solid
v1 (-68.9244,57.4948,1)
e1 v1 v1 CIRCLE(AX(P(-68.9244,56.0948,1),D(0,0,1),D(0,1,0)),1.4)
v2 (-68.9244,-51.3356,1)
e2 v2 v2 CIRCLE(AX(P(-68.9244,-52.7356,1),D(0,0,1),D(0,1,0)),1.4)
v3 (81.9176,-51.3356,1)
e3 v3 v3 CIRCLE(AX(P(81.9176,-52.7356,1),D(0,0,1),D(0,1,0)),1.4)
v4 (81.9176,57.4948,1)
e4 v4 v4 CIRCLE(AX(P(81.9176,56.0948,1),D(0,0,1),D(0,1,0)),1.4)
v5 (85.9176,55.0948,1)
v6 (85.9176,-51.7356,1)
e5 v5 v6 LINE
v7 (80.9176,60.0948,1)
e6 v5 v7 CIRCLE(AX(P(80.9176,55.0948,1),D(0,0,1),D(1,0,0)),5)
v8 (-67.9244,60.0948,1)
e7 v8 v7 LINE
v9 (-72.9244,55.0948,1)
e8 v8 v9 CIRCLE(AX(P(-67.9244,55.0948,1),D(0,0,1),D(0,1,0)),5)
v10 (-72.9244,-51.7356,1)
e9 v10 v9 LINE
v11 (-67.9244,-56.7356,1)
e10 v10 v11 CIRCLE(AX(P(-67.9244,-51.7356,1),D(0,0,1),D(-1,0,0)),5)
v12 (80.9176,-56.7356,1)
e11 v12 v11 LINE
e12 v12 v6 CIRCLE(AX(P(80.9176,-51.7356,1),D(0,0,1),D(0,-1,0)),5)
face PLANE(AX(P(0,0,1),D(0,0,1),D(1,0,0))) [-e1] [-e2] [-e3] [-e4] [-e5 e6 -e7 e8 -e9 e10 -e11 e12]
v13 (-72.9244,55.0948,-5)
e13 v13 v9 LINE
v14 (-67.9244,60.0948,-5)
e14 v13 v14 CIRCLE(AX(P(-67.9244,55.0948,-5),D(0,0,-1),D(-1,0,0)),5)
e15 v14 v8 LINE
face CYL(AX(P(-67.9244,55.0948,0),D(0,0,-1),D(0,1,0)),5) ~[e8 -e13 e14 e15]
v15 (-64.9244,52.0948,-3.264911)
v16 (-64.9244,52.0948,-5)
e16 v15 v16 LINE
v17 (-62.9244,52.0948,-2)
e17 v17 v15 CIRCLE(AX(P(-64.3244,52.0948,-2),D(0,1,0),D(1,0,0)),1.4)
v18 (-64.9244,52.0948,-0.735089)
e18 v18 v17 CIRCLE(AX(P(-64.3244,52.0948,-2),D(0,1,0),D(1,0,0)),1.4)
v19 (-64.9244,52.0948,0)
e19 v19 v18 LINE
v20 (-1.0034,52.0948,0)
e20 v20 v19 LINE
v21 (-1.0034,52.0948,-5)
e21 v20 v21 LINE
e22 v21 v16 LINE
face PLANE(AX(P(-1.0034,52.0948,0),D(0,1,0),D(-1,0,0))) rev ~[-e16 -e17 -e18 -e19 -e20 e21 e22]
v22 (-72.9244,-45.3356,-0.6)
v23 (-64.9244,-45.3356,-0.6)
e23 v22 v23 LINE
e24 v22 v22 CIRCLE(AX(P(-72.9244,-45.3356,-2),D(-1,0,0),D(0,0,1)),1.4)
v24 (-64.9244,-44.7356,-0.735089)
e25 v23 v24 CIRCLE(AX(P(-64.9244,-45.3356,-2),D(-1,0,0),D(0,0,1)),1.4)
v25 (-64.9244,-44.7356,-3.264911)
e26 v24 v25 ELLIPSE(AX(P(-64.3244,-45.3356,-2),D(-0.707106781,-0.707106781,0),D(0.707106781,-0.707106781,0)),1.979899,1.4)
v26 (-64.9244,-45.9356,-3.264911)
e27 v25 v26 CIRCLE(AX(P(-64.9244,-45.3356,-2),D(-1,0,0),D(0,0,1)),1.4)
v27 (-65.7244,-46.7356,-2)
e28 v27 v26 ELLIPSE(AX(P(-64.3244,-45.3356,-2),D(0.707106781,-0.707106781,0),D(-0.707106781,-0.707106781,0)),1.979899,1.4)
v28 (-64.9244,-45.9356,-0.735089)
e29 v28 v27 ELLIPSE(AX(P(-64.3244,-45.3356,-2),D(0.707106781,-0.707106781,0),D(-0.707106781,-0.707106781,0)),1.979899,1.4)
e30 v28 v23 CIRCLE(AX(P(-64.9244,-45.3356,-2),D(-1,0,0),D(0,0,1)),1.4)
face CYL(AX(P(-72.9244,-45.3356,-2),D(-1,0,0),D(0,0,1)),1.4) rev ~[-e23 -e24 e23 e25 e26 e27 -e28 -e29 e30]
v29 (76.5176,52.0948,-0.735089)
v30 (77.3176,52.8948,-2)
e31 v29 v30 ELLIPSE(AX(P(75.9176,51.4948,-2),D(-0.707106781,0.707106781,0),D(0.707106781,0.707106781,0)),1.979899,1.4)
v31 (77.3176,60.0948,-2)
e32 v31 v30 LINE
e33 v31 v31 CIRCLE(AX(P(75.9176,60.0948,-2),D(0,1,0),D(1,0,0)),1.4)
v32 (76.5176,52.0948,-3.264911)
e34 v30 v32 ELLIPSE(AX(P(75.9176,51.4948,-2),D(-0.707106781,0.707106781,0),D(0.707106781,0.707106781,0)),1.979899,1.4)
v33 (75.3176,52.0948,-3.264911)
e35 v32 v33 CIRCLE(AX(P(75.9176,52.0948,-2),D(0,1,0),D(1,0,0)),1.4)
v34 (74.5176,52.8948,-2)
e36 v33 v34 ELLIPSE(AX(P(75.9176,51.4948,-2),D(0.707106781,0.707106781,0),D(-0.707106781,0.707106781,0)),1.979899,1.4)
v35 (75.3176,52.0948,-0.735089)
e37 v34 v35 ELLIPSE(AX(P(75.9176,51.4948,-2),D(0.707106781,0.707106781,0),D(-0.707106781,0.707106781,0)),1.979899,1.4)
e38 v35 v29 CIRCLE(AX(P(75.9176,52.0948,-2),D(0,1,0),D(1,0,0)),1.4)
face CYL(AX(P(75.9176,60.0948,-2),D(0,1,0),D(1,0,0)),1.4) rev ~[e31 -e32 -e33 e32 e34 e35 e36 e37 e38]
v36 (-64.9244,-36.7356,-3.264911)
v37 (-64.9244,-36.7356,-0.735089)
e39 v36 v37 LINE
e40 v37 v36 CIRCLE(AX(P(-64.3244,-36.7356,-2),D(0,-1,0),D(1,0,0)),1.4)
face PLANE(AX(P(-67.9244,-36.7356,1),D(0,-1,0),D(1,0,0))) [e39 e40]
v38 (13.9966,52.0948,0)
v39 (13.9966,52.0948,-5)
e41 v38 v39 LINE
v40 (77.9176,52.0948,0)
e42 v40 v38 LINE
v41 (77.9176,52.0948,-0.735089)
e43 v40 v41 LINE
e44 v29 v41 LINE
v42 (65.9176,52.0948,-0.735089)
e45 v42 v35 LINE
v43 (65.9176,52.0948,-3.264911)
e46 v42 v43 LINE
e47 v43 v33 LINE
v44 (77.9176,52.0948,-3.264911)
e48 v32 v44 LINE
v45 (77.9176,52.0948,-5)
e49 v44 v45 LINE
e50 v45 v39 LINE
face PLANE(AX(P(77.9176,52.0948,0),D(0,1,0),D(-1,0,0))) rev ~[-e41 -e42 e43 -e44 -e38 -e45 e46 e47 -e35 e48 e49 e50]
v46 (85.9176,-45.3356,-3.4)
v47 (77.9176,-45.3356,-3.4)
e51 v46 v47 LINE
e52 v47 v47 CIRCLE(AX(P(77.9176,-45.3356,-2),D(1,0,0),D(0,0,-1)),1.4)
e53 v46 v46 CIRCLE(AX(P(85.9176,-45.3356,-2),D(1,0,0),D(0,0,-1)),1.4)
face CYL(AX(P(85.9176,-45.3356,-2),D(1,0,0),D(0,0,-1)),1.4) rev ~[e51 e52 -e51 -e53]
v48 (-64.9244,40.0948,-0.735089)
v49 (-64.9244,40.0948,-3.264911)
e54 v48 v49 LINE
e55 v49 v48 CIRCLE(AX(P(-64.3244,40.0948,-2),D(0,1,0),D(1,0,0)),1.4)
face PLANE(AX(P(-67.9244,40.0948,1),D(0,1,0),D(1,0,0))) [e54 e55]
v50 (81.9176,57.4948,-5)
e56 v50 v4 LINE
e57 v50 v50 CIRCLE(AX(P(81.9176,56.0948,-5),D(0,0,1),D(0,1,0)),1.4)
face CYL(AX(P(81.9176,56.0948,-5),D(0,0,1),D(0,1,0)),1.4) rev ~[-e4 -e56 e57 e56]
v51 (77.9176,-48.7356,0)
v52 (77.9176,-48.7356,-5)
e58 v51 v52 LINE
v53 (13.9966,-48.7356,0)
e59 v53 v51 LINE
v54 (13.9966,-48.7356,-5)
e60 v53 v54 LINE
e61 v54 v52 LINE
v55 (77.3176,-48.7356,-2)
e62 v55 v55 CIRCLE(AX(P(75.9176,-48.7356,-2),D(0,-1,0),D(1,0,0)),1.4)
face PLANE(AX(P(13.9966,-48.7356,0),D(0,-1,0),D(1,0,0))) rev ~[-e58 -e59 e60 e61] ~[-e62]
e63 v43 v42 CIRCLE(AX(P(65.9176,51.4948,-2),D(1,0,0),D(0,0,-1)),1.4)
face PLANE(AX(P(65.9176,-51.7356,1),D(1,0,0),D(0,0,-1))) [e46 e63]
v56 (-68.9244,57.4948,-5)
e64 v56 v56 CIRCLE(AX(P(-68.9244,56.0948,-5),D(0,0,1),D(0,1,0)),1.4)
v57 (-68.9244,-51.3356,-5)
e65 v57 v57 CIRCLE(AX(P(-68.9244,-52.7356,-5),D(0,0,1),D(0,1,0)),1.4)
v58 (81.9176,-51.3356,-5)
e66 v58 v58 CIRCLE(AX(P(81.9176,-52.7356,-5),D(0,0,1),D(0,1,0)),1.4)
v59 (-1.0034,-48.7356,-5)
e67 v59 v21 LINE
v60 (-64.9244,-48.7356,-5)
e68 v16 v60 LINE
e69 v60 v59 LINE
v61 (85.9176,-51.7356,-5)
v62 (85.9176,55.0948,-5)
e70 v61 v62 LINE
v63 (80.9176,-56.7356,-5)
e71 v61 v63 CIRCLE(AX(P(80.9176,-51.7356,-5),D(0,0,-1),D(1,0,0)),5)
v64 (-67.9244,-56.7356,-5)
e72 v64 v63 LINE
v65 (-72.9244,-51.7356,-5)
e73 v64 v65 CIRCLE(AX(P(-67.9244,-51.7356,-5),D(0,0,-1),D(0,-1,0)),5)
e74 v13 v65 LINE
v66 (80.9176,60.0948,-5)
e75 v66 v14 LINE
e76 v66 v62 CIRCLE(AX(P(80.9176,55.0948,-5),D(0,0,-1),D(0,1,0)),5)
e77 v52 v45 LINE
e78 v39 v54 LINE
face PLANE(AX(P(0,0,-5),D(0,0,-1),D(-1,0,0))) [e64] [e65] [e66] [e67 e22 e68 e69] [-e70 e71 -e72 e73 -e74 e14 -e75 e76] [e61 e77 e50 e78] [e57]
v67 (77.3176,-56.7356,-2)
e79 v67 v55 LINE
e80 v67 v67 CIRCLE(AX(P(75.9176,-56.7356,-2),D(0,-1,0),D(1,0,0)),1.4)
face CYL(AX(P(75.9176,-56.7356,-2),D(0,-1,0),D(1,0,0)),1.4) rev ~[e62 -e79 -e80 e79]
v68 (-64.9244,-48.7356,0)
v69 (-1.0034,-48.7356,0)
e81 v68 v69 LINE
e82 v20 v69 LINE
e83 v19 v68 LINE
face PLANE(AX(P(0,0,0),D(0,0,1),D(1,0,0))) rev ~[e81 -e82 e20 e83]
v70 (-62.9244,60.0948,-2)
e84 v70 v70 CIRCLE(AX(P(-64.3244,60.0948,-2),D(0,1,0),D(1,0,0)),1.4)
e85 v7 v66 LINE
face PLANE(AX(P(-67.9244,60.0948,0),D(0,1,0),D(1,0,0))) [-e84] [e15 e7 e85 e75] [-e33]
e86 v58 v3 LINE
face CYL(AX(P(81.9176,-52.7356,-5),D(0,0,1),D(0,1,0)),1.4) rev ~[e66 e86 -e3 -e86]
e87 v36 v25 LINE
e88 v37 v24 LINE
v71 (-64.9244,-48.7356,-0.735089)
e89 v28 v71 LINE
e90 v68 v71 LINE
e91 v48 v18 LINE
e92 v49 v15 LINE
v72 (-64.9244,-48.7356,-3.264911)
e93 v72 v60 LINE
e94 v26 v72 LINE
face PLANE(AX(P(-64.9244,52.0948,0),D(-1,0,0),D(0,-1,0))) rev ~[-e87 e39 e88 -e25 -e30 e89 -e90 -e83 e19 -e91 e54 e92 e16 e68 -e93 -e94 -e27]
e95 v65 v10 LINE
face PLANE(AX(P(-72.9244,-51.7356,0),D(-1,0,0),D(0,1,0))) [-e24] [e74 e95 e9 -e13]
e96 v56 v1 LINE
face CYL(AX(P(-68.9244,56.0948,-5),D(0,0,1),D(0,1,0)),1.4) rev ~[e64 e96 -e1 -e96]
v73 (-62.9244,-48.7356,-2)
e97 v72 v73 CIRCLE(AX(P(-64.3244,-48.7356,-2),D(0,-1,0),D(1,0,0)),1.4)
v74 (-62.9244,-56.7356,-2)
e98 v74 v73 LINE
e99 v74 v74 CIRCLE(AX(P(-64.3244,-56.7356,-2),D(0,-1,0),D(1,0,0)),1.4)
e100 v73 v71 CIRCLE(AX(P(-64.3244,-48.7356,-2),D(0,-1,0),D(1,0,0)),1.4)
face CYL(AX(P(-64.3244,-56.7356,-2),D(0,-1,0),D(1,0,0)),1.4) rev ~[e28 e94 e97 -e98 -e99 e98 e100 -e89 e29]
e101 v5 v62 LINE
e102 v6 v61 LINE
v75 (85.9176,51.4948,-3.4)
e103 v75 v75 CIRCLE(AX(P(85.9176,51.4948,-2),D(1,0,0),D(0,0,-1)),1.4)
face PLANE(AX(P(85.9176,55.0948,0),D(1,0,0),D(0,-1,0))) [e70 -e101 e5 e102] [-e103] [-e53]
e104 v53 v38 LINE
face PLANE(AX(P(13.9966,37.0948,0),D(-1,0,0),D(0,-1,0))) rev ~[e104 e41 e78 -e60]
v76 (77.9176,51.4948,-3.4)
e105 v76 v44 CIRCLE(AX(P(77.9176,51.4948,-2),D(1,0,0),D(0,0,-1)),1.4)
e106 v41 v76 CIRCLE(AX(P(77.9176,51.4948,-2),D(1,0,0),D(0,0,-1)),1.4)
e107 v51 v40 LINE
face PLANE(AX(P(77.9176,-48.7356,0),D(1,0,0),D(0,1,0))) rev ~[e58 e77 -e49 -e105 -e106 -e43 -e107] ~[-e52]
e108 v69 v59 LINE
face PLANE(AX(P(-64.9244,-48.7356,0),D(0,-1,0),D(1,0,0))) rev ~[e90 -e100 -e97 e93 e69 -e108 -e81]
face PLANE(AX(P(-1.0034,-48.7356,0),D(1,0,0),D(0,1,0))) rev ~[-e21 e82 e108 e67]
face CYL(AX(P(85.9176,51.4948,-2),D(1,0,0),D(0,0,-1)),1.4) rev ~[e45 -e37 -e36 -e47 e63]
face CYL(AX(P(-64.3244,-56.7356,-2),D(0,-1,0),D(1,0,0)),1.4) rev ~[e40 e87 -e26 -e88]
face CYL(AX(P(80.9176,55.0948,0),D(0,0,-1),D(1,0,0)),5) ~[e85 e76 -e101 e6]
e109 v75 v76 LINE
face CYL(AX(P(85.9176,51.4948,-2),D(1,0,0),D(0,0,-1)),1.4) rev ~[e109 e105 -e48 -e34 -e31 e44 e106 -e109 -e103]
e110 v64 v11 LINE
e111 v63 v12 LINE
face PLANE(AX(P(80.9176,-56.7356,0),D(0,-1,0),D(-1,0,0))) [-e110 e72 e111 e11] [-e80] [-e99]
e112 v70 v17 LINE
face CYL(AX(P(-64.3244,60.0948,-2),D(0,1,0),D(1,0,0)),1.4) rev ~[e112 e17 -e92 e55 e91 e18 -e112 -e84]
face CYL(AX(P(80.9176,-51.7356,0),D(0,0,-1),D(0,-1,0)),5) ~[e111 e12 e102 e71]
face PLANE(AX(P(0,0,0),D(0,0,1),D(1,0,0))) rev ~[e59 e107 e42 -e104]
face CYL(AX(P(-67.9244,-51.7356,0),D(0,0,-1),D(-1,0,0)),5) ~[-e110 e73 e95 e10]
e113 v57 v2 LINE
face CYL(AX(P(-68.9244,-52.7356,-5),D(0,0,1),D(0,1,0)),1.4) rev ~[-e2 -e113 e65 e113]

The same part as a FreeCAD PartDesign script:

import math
import FreeCAD as App
import Part
import Sketcher

V = App.Vector

doc = App.newDocument("Part")
body = doc.addObject("PartDesign::Body", "Body")

# Sketch on XY plane
sketch1 = body.newObject("Sketcher::SketchObject", "Sketch")
sketch1.AttachmentSupport = (doc.getObject("XY_Plane"), [""])
sketch1.MapMode = "FlatFace"
sketch1.addGeometry(Part.LineSegment(V(80.9176, 60.0948, 0), V(-67.9244, 60.0948, 0)), False)
sketch1.addGeometry(Part.ArcOfCircle(Part.Circle(V(-67.9244, 55.0948, 0), V(0, 0, 1), 5), math.radians(90), math.radians(180)), False)
sketch1.addGeometry(Part.LineSegment(V(-72.9244, 55.0948, 0), V(-72.9244, -51.7356, 0)), False)
sketch1.addGeometry(Part.ArcOfCircle(Part.Circle(V(-67.9244, -51.7356, 0), V(0, 0, 1), 5), math.radians(180), math.radians(270)), False)
sketch1.addGeometry(Part.LineSegment(V(-67.9244, -56.7356, 0), V(80.9176, -56.7356, 0)), False)
sketch1.addGeometry(Part.ArcOfCircle(Part.Circle(V(80.9176, -51.7356, 0), V(0, 0, 1), 5), math.radians(-90), math.radians(0)), False)
sketch1.addGeometry(Part.LineSegment(V(85.9176, -51.7356, 0), V(85.9176, 55.0948, 0)), False)
sketch1.addGeometry(Part.ArcOfCircle(Part.Circle(V(80.9176, 55.0948, 0), V(0, 0, 1), 5), math.radians(0), math.radians(90)), False)
sketch1.addConstraint(Sketcher.Constraint("Tangent", 0, 2, 1, 1))
sketch1.addConstraint(Sketcher.Constraint("Tangent", 1, 2, 2, 1))
sketch1.addConstraint(Sketcher.Constraint("Tangent", 2, 2, 3, 1))
sketch1.addConstraint(Sketcher.Constraint("Tangent", 3, 2, 4, 1))
sketch1.addConstraint(Sketcher.Constraint("Tangent", 4, 2, 5, 1))
sketch1.addConstraint(Sketcher.Constraint("Tangent", 5, 2, 6, 1))
sketch1.addConstraint(Sketcher.Constraint("Tangent", 6, 2, 7, 1))
sketch1.addConstraint(Sketcher.Constraint("Tangent", 7, 2, 0, 1))
sketch1.addConstraint(Sketcher.Constraint("Horizontal", 0))
sketch1.addConstraint(Sketcher.Constraint("Vertical", 2))
sketch1.addConstraint(Sketcher.Constraint("Horizontal", 4))
sketch1.addConstraint(Sketcher.Constraint("Vertical", 6))
sketch1.addConstraint(Sketcher.Constraint("Equal", 1, 3))
sketch1.addConstraint(Sketcher.Constraint("Equal", 3, 5))
sketch1.addConstraint(Sketcher.Constraint("Equal", 5, 7))
sketch1.addConstraint(Sketcher.Constraint("Radius", 1, 5.0))
sketch1.addConstraint(Sketcher.Constraint("DistanceX", 0, 2, 0, 1, 148.842))
sketch1.addConstraint(Sketcher.Constraint("DistanceY", 2, 2, 2, 1, 106.8304))
sketch1.addConstraint(Sketcher.Constraint("DistanceX", 1, 3, -1, 1, 67.9244))
sketch1.addConstraint(Sketcher.Constraint("DistanceY", -1, 1, 1, 3, 55.0948))
pad1 = body.newObject("PartDesign::Pad", "Pad")
pad1.Profile = sketch1
pad1.Length = 1

# Sketch on XY plane
sketch2 = body.newObject("Sketcher::SketchObject", "Sketch001")
sketch2.AttachmentSupport = (doc.getObject("XY_Plane"), [""])
sketch2.MapMode = "FlatFace"
sketch2.addGeometry(Part.LineSegment(V(80.9176, -56.7356, 0), V(-67.9244, -56.7356, 0)), False)
sketch2.addGeometry(Part.ArcOfCircle(Part.Circle(V(-67.9244, -51.7356, 0), V(0, 0, 1), 5), math.radians(180), math.radians(270)), False)
sketch2.addGeometry(Part.LineSegment(V(-72.9244, -51.7356, 0), V(-72.9244, 55.0948, 0)), False)
sketch2.addGeometry(Part.ArcOfCircle(Part.Circle(V(-67.9244, 55.0948, 0), V(0, 0, 1), 5), math.radians(90), math.radians(180)), False)
sketch2.addGeometry(Part.LineSegment(V(-67.9244, 60.0948, 0), V(80.9176, 60.0948, 0)), False)
sketch2.addGeometry(Part.ArcOfCircle(Part.Circle(V(80.9176, 55.0948, 0), V(0, 0, 1), 5), math.radians(0), math.radians(90)), False)
sketch2.addGeometry(Part.LineSegment(V(85.9176, 55.0948, 0), V(85.9176, -51.7356, 0)), False)
sketch2.addGeometry(Part.ArcOfCircle(Part.Circle(V(80.9176, -51.7356, 0), V(0, 0, 1), 5), math.radians(-90), math.radians(0)), False)
sketch2.addGeometry(Part.LineSegment(V(77.9176, -48.7356, 0), V(77.9176, 52.0948, 0)), False)
sketch2.addGeometry(Part.LineSegment(V(77.9176, 52.0948, 0), V(13.9966, 52.0948, 0)), False)
sketch2.addGeometry(Part.LineSegment(V(13.9966, 52.0948, 0), V(13.9966, -48.7356, 0)), False)
sketch2.addGeometry(Part.LineSegment(V(13.9966, -48.7356, 0), V(77.9176, -48.7356, 0)), False)
sketch2.addGeometry(Part.LineSegment(V(-64.9244, -48.7356, 0), V(-1.0034, -48.7356, 0)), False)
sketch2.addGeometry(Part.LineSegment(V(-1.0034, -48.7356, 0), V(-1.0034, 52.0948, 0)), False)
sketch2.addGeometry(Part.LineSegment(V(-1.0034, 52.0948, 0), V(-64.9244, 52.0948, 0)), False)
sketch2.addGeometry(Part.LineSegment(V(-64.9244, 52.0948, 0), V(-64.9244, -48.7356, 0)), False)
sketch2.addConstraint(Sketcher.Constraint("Tangent", 0, 2, 1, 2))
sketch2.addConstraint(Sketcher.Constraint("Tangent", 1, 1, 2, 1))
sketch2.addConstraint(Sketcher.Constraint("Tangent", 2, 2, 3, 2))
sketch2.addConstraint(Sketcher.Constraint("Tangent", 3, 1, 4, 1))
sketch2.addConstraint(Sketcher.Constraint("Tangent", 4, 2, 5, 2))
sketch2.addConstraint(Sketcher.Constraint("Tangent", 5, 1, 6, 1))
sketch2.addConstraint(Sketcher.Constraint("Tangent", 6, 2, 7, 2))
sketch2.addConstraint(Sketcher.Constraint("Tangent", 7, 1, 0, 1))
sketch2.addConstraint(Sketcher.Constraint("Coincident", 8, 2, 9, 1))
sketch2.addConstraint(Sketcher.Constraint("Coincident", 9, 2, 10, 1))
sketch2.addConstraint(Sketcher.Constraint("Coincident", 10, 2, 11, 1))
sketch2.addConstraint(Sketcher.Constraint("Coincident", 11, 2, 8, 1))
sketch2.addConstraint(Sketcher.Constraint("Coincident", 12, 2, 13, 1))
sketch2.addConstraint(Sketcher.Constraint("Coincident", 13, 2, 14, 1))
sketch2.addConstraint(Sketcher.Constraint("Coincident", 14, 2, 15, 1))
sketch2.addConstraint(Sketcher.Constraint("Coincident", 15, 2, 12, 1))
sketch2.addConstraint(Sketcher.Constraint("Horizontal", 0))
sketch2.addConstraint(Sketcher.Constraint("Vertical", 2))
sketch2.addConstraint(Sketcher.Constraint("Horizontal", 4))
sketch2.addConstraint(Sketcher.Constraint("Vertical", 6))
sketch2.addConstraint(Sketcher.Constraint("Vertical", 8))
sketch2.addConstraint(Sketcher.Constraint("Horizontal", 9))
sketch2.addConstraint(Sketcher.Constraint("Vertical", 10))
sketch2.addConstraint(Sketcher.Constraint("Horizontal", 11))
sketch2.addConstraint(Sketcher.Constraint("Horizontal", 12))
sketch2.addConstraint(Sketcher.Constraint("Vertical", 13))
sketch2.addConstraint(Sketcher.Constraint("Horizontal", 14))
sketch2.addConstraint(Sketcher.Constraint("Vertical", 15))
sketch2.addConstraint(Sketcher.Constraint("Equal", 1, 3))
sketch2.addConstraint(Sketcher.Constraint("Equal", 3, 5))
sketch2.addConstraint(Sketcher.Constraint("Equal", 5, 7))
sketch2.addConstraint(Sketcher.Constraint("Horizontal", 11, 2, 12, 2))
sketch2.addConstraint(Sketcher.Constraint("Horizontal", 9, 2, 13, 2))
sketch2.addConstraint(Sketcher.Constraint("Equal", 11, 12))
sketch2.addConstraint(Sketcher.Constraint("Radius", 1, 5.0))
sketch2.addConstraint(Sketcher.Constraint("DistanceY", 8, 2, 4, 2, 8.0))
sketch2.addConstraint(Sketcher.Constraint("DistanceX", 8, 2, 5, 1, 8.0))
sketch2.addConstraint(Sketcher.Constraint("DistanceY", 7, 1, 10, 2, 8.0))
sketch2.addConstraint(Sketcher.Constraint("DistanceX", 12, 2, 10, 2, 15.0))
sketch2.addConstraint(Sketcher.Constraint("DistanceX", 2, 2, 14, 2, 8.0))
sketch2.addConstraint(Sketcher.Constraint("DistanceX", 0, 2, 0, 1, 148.842))
sketch2.addConstraint(Sketcher.Constraint("DistanceY", 2, 1, 2, 2, 106.8304))
sketch2.addConstraint(Sketcher.Constraint("DistanceX", 1, 3, -1, 1, 67.9244))
sketch2.addConstraint(Sketcher.Constraint("DistanceY", 1, 3, -1, 1, 51.7356))
pad2 = body.newObject("PartDesign::Pad", "Pad001")
pad2.Profile = sketch2
pad2.Length = 5
pad2.Reversed = True

# Sketch on XY plane
sketch3 = body.newObject("Sketcher::SketchObject", "Sketch002")
sketch3.AttachmentSupport = (doc.getObject("XY_Plane"), [""])
sketch3.MapMode = "FlatFace"
sketch3.AttachmentOffset = App.Placement(V(0, 0, -5), App.Rotation())
sketch3.addGeometry(Part.Circle(V(-68.9244, -52.7356, 0), V(0, 0, 1), 1.4), False)
sketch3.addGeometry(Part.Circle(V(81.9176, -52.7356, 0), V(0, 0, 1), 1.4), False)
sketch3.addGeometry(Part.Circle(V(81.9176, 56.0948, 0), V(0, 0, 1), 1.4), False)
sketch3.addGeometry(Part.Circle(V(-68.9244, 56.0948, 0), V(0, 0, 1), 1.4), False)
sketch3.addConstraint(Sketcher.Constraint("Equal", 0, 1))
sketch3.addConstraint(Sketcher.Constraint("Equal", 1, 2))
sketch3.addConstraint(Sketcher.Constraint("Equal", 2, 3))
sketch3.addConstraint(Sketcher.Constraint("Horizontal", 0, 3, 1, 3))
sketch3.addConstraint(Sketcher.Constraint("Horizontal", 2, 3, 3, 3))
sketch3.addConstraint(Sketcher.Constraint("Vertical", 1, 3, 2, 3))
sketch3.addConstraint(Sketcher.Constraint("Vertical", 0, 3, 3, 3))
sketch3.addConstraint(Sketcher.Constraint("Diameter", 0, 2.8))
sketch3.addConstraint(Sketcher.Constraint("DistanceX", 0, 3, 1, 3, 150.842))
sketch3.addConstraint(Sketcher.Constraint("DistanceX", 0, 3, -1, 1, 68.9244))
sketch3.addConstraint(Sketcher.Constraint("DistanceY", 0, 3, -1, 1, 52.7356))
sketch3.addConstraint(Sketcher.Constraint("DistanceY", -1, 1, 2, 3, 56.0948))
doc.recompute()
hole = body.newObject("PartDesign::Hole", "Hole")
hole.Profile = sketch3
hole.ThreadType = "None"
hole.Diameter = 2.8
hole.DepthType = "ThroughAll"
hole.Reversed = True

# Sketch on XZ plane
sketch4 = body.newObject("Sketcher::SketchObject", "Sketch003")
sketch4.AttachmentSupport = (doc.getObject("XZ_Plane"), [""])
sketch4.MapMode = "FlatFace"
sketch4.AttachmentOffset = App.Placement(V(0, 0, -60.0948), App.Rotation())
sketch4.addGeometry(Part.Circle(V(-64.3244, -2, 0), V(0, 0, 1), 1.4), False)
sketch4.addGeometry(Part.Circle(V(75.9176, -2, 0), V(0, 0, 1), 1.4), False)
sketch4.addConstraint(Sketcher.Constraint("Equal", 0, 1))
sketch4.addConstraint(Sketcher.Constraint("Horizontal", 0, 3, 1, 3))
sketch4.addConstraint(Sketcher.Constraint("Diameter", 0, 2.8))
sketch4.addConstraint(Sketcher.Constraint("DistanceY", 0, 3, -1, 1, 2.0))
sketch4.addConstraint(Sketcher.Constraint("DistanceX", 0, 3, 1, 3, 140.242))
sketch4.addConstraint(Sketcher.Constraint("DistanceX", 0, 3, -1, 1, 64.3244))
pocket1 = body.newObject("PartDesign::Pocket", "Pocket")
pocket1.Profile = sketch4
pocket1.Length = 20
pocket1.Reversed = True

# Sketch on XZ plane
sketch5 = body.newObject("Sketcher::SketchObject", "Sketch004")
sketch5.AttachmentSupport = (doc.getObject("XZ_Plane"), [""])
sketch5.MapMode = "FlatFace"
sketch5.AttachmentOffset = App.Placement(V(0, 0, 56.7356), App.Rotation())
sketch5.addGeometry(Part.Circle(V(75.9176, -2, 0), V(0, 0, 1), 1.4), False)
sketch5.addGeometry(Part.Circle(V(-64.3244, -2, 0), V(0, 0, 1), 1.4), False)
sketch5.addConstraint(Sketcher.Constraint("Equal", 0, 1))
sketch5.addConstraint(Sketcher.Constraint("Horizontal", 0, 3, 1, 3))
sketch5.addConstraint(Sketcher.Constraint("Diameter", 0, 2.8))
sketch5.addConstraint(Sketcher.Constraint("DistanceY", 0, 3, -1, 1, 2.0))
sketch5.addConstraint(Sketcher.Constraint("DistanceX", 1, 3, 0, 3, 140.242))
sketch5.addConstraint(Sketcher.Constraint("DistanceX", -1, 1, 0, 3, 75.9176))
pocket2 = body.newObject("PartDesign::Pocket", "Pocket001")
pocket2.Profile = sketch5
pocket2.Length = 20

# Sketch on YZ plane
sketch6 = body.newObject("Sketcher::SketchObject", "Sketch005")
sketch6.AttachmentSupport = (doc.getObject("YZ_Plane"), [""])
sketch6.MapMode = "FlatFace"
sketch6.AttachmentOffset = App.Placement(V(0, 0, 85.9176), App.Rotation())
sketch6.addGeometry(Part.Circle(V(51.4948, -2, 0), V(0, 0, 1), 1.4), False)
sketch6.addGeometry(Part.Circle(V(-45.3356, -2, 0), V(0, 0, 1), 1.4), False)
sketch6.addConstraint(Sketcher.Constraint("Equal", 0, 1))
sketch6.addConstraint(Sketcher.Constraint("Horizontal", 0, 3, 1, 3))
sketch6.addConstraint(Sketcher.Constraint("Diameter", 0, 2.8))
sketch6.addConstraint(Sketcher.Constraint("DistanceY", 0, 3, -1, 1, 2.0))
sketch6.addConstraint(Sketcher.Constraint("DistanceX", -1, 1, 0, 3, 51.4948))
sketch6.addConstraint(Sketcher.Constraint("DistanceX", 1, 3, -1, 1, 45.3356))
pocket3 = body.newObject("PartDesign::Pocket", "Pocket002")
pocket3.Profile = sketch6
pocket3.Length = 20

# Sketch on YZ plane
sketch7 = body.newObject("Sketcher::SketchObject", "Sketch006")
sketch7.AttachmentSupport = (doc.getObject("YZ_Plane"), [""])
sketch7.MapMode = "FlatFace"
sketch7.AttachmentOffset = App.Placement(V(0, 0, -72.9244), App.Rotation())
sketch7.addGeometry(Part.Circle(V(-45.3356, -2, 0), V(0, 0, 1), 1.4), False)
sketch7.addConstraint(Sketcher.Constraint("Diameter", 0, 2.8))
sketch7.addConstraint(Sketcher.Constraint("DistanceY", 0, 3, -1, 1, 2.0))
sketch7.addConstraint(Sketcher.Constraint("DistanceX", 0, 3, -1, 1, 45.3356))
pocket4 = body.newObject("PartDesign::Pocket", "Pocket003")
pocket4.Profile = sketch7
pocket4.Length = 20
pocket4.Reversed = True

doc.recompute()
